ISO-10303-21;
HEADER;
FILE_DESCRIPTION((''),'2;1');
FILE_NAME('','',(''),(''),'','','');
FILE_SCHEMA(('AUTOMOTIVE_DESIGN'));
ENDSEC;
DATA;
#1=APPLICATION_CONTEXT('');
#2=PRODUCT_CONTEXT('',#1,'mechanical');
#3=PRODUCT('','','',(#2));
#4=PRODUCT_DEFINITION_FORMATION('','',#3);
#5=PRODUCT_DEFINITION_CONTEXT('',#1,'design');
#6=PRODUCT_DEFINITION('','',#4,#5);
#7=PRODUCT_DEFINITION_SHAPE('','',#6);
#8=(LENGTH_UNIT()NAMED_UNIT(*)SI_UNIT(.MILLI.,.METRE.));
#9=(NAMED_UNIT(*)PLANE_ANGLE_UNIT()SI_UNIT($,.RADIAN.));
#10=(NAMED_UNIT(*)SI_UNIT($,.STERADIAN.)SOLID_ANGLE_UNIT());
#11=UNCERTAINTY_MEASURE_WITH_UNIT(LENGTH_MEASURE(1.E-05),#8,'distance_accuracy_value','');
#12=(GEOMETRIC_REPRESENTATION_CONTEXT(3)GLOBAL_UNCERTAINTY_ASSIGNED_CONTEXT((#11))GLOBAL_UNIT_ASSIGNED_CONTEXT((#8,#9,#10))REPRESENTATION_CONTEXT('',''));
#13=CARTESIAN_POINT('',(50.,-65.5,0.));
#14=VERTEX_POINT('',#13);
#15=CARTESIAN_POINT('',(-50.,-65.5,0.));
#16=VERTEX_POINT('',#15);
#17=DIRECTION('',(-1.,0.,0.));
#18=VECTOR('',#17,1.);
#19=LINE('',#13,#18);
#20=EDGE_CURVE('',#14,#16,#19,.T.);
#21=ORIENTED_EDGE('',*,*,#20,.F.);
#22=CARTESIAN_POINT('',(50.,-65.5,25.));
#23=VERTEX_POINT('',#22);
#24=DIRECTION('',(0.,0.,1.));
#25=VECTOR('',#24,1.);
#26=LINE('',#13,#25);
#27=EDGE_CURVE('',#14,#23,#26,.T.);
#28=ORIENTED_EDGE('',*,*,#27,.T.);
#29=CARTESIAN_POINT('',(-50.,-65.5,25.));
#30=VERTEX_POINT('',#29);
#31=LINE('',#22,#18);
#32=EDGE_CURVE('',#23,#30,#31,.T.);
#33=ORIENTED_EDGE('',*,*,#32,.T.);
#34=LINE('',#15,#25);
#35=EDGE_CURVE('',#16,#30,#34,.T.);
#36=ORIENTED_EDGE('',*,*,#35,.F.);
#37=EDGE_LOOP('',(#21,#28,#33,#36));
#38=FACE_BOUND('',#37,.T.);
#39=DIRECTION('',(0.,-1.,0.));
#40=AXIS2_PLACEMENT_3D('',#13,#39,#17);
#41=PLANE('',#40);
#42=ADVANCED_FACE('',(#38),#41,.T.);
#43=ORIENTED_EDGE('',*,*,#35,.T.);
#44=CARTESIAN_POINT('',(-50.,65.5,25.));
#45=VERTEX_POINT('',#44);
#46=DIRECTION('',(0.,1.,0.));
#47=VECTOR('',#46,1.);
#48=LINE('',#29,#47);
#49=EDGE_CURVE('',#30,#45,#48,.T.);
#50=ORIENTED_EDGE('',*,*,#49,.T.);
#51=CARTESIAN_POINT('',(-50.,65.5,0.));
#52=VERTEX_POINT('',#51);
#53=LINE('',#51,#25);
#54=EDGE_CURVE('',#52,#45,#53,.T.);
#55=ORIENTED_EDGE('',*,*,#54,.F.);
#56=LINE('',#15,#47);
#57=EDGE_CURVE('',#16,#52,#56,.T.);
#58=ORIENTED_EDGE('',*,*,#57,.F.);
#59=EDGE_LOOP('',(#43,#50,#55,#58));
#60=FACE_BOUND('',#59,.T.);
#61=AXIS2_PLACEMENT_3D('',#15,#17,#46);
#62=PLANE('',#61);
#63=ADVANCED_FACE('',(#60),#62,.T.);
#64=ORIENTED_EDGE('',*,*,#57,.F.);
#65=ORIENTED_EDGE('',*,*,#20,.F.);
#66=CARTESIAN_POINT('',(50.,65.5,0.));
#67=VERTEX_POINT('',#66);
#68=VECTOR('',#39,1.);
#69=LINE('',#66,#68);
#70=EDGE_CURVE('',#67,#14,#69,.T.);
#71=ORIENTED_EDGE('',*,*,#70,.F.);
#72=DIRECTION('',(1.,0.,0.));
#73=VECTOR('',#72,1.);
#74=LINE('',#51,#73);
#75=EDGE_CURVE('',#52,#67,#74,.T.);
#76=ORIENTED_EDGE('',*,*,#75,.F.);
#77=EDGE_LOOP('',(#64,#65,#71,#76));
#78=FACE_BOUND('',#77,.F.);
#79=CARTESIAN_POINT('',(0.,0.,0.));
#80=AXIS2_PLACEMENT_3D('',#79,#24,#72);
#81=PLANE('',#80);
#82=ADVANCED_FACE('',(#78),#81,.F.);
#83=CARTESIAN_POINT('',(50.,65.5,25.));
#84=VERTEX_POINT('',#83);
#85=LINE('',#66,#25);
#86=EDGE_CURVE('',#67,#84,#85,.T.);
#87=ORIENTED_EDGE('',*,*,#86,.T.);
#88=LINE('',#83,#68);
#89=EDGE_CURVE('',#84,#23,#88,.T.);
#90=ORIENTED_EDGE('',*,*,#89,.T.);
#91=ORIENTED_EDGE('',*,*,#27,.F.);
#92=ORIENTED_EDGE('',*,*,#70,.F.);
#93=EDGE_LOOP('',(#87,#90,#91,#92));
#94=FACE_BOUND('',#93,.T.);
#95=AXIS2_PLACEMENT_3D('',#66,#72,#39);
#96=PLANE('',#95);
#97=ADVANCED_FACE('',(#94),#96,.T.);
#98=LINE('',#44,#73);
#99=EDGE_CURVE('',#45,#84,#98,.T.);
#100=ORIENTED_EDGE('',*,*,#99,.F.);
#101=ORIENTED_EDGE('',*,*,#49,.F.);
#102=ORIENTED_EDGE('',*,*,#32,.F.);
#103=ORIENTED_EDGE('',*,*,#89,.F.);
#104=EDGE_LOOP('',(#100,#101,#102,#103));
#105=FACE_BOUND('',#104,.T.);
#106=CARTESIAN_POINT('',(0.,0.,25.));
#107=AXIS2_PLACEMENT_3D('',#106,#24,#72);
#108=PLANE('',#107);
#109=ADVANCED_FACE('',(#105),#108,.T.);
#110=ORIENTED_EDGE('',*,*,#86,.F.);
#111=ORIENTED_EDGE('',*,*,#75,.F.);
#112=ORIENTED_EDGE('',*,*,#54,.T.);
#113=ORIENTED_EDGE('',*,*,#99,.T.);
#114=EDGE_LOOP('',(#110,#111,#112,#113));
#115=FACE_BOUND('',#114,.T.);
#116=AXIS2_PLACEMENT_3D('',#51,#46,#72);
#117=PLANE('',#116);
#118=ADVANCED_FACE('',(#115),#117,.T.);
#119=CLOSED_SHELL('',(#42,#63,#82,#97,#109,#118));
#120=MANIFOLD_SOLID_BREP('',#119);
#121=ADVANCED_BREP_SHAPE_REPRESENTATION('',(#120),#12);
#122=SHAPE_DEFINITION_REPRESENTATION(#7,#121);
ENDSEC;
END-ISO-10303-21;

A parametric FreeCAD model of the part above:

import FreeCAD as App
import Part
import Sketcher

V = App.Vector


def add_polygon(sketch, points):
    """Adds a closed chain of lines whose ends are joined by coincident constraints."""
    first, n = sketch.GeometryCount, len(points)
    for a, b in zip(points, points[1:] + points[:1]):
        sketch.addGeometry(Part.LineSegment(App.Vector(*a, 0), App.Vector(*b, 0)), False)
    for i in range(n):
        sketch.addConstraint(Sketcher.Constraint("Coincident", first + i, 2, first + (i + 1) % n, 1))

doc = App.newDocument("Part")
body = doc.addObject("PartDesign::Body", "Body")

sketch1 = doc.addObject("Sketcher::SketchObject", "Sketch")
body.addObject(sketch1)
sketch1.AttachmentSupport = (doc.XY_Plane, [""])
sketch1.MapMode = "FlatFace"
add_polygon(sketch1, [(50, 66), (-50, 66), (-50, -66), (50, -66)])
sketch1.addConstraint(Sketcher.Constraint("Horizontal", 0))
sketch1.addConstraint(Sketcher.Constraint("Vertical", 1))
sketch1.addConstraint(Sketcher.Constraint("Horizontal", 2))
sketch1.addConstraint(Sketcher.Constraint("Vertical", 3))
sketch1.addConstraint(Sketcher.Constraint("Symmetric", 0, 2, 2, 2, -1, 1))
sketch1.addConstraint(Sketcher.Constraint("DistanceX", 0, 2, 0, 1, 100.0))
sketch1.addConstraint(Sketcher.Constraint("DistanceY", 1, 2, 1, 1, 131.0))
pad1 = doc.addObject("PartDesign::Pad", "Pad")
body.addObject(pad1)
pad1.Profile = sketch1
pad1.Length = 25

doc.recompute()
